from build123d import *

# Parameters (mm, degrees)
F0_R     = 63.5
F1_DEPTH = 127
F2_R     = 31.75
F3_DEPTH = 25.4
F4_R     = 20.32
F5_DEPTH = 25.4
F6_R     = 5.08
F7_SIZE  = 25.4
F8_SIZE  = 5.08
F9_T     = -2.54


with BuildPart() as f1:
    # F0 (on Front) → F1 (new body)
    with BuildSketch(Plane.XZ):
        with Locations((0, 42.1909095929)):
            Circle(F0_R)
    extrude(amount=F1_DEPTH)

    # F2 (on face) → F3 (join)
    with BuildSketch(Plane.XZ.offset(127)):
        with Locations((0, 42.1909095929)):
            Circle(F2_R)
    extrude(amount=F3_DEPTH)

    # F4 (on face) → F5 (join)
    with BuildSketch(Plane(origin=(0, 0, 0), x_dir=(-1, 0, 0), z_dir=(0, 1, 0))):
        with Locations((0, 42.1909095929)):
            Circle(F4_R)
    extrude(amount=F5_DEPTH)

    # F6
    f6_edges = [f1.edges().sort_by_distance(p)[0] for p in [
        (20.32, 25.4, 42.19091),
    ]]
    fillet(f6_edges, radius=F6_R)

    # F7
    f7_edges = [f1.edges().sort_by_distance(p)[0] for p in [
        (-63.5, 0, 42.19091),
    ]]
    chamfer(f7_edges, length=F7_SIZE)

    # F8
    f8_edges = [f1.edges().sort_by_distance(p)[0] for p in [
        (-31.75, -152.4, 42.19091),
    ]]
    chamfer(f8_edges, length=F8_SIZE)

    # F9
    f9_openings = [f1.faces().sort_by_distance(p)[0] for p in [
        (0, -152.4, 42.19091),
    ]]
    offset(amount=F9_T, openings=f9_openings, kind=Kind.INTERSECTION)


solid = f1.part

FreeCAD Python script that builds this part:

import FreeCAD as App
import Part
import Sketcher

V = App.Vector
Q = App.Units.Quantity


def edges_at(feature, points):
    """Names of the edges that pass closest to the given points."""
    edges = feature.Shape.Edges
    near = lambda p: min(range(len(edges)), key=lambda i: edges[i].distToShape(Part.Vertex(*p))[0])
    return sorted({f"Edge{near(p) + 1}" for p in points})


def faces_at(feature, points):
    """Names of the faces that lie closest to the given points."""
    faces = feature.Shape.Faces
    near = lambda p: min(range(len(faces)), key=lambda i: faces[i].distToShape(Part.Vertex(*p))[0])
    return sorted({f"Face{near(p) + 1}" for p in points})

doc = App.newDocument("Part")
body = doc.addObject("PartDesign::Body", "Body")

# Sketch on XZ plane
sketch1 = body.newObject("Sketcher::SketchObject", "Sketch")
sketch1.AttachmentSupport = (doc.getObject("XZ_Plane"), [""])
sketch1.MapMode = "FlatFace"
sketch1.addGeometry(Part.Circle(V(0, 42, 0), V(0, 0, 1), 64), False)
sketch1.addConstraint([
    Sketcher.Constraint("PointOnObject", 0, 3, -2),
    Sketcher.Constraint("Diameter", 0, Q("5 in")),
    Sketcher.Constraint("DistanceY", -1, 1, 0, 3, Q("42.19091 mm")),
])
pad1 = body.newObject("PartDesign::Pad", "Pad")
pad1.Profile = sketch1
pad1.Length = Q("5 in")

# Sketch on XZ plane
sketch2 = body.newObject("Sketcher::SketchObject", "Sketch001")
sketch2.AttachmentSupport = (doc.getObject("XZ_Plane"), [""])
sketch2.MapMode = "FlatFace"
sketch2.AttachmentOffset = App.Placement(V(0, 0, 5 * 25.4), App.Rotation())
sketch2.addGeometry(Part.Circle(V(0, 42, 0), V(0, 0, 1), 32), False)
sketch2.addConstraint([
    Sketcher.Constraint("PointOnObject", 0, 3, -2),
    Sketcher.Constraint("Diameter", 0, Q("2.5 in")),
    Sketcher.Constraint("DistanceY", -1, 1, 0, 3, Q("42.19091 mm")),
])
pad2 = body.newObject("PartDesign::Pad", "Pad001")
pad2.Profile = sketch2
pad2.Length = Q("1 in")

# Sketch on XZ plane
sketch3 = body.newObject("Sketcher::SketchObject", "Sketch002")
sketch3.AttachmentSupport = (doc.getObject("XZ_Plane"), [""])
sketch3.MapMode = "FlatFace"
sketch3.addGeometry(Part.Circle(V(0, 42, 0), V(0, 0, 1), 20), False)
sketch3.addConstraint([
    Sketcher.Constraint("PointOnObject", 0, 3, -2),
    Sketcher.Constraint("Diameter", 0, Q("1.6 in")),
    Sketcher.Constraint("DistanceY", -1, 1, 0, 3, Q("42.19091 mm")),
])
pad3 = body.newObject("PartDesign::Pad", "Pad002")
pad3.Profile = sketch3
pad3.Length = Q("1 in")
pad3.Reversed = True
doc.recompute()

fillet = body.newObject("PartDesign::Fillet", "Fillet")
fillet.Base = (pad3, edges_at(pad3, [(20.32, 25.4, 42.191)]))
fillet.Radius = Q("0.2 in")
doc.recompute()

chamfer = body.newObject("PartDesign::Chamfer", "Chamfer")
chamfer.Base = (fillet, edges_at(fillet, [(-63.5, 0, 42.191)]))
chamfer.Size = Q("1 in")
doc.recompute()

chamfer2 = body.newObject("PartDesign::Chamfer", "Chamfer001")
chamfer2.Base = (chamfer, edges_at(chamfer, [(-31.75, -152.4, 42.191)]))
chamfer2.Size = Q("0.2 in")
doc.recompute()

thickness = body.newObject("PartDesign::Thickness", "Thickness")
thickness.Base = (chamfer2, faces_at(chamfer2, [(0, -152.4, 42.191)]))
thickness.Value = Q("0.1 in")
thickness.Reversed = True
thickness.Join = "Intersection"

doc.recompute()
